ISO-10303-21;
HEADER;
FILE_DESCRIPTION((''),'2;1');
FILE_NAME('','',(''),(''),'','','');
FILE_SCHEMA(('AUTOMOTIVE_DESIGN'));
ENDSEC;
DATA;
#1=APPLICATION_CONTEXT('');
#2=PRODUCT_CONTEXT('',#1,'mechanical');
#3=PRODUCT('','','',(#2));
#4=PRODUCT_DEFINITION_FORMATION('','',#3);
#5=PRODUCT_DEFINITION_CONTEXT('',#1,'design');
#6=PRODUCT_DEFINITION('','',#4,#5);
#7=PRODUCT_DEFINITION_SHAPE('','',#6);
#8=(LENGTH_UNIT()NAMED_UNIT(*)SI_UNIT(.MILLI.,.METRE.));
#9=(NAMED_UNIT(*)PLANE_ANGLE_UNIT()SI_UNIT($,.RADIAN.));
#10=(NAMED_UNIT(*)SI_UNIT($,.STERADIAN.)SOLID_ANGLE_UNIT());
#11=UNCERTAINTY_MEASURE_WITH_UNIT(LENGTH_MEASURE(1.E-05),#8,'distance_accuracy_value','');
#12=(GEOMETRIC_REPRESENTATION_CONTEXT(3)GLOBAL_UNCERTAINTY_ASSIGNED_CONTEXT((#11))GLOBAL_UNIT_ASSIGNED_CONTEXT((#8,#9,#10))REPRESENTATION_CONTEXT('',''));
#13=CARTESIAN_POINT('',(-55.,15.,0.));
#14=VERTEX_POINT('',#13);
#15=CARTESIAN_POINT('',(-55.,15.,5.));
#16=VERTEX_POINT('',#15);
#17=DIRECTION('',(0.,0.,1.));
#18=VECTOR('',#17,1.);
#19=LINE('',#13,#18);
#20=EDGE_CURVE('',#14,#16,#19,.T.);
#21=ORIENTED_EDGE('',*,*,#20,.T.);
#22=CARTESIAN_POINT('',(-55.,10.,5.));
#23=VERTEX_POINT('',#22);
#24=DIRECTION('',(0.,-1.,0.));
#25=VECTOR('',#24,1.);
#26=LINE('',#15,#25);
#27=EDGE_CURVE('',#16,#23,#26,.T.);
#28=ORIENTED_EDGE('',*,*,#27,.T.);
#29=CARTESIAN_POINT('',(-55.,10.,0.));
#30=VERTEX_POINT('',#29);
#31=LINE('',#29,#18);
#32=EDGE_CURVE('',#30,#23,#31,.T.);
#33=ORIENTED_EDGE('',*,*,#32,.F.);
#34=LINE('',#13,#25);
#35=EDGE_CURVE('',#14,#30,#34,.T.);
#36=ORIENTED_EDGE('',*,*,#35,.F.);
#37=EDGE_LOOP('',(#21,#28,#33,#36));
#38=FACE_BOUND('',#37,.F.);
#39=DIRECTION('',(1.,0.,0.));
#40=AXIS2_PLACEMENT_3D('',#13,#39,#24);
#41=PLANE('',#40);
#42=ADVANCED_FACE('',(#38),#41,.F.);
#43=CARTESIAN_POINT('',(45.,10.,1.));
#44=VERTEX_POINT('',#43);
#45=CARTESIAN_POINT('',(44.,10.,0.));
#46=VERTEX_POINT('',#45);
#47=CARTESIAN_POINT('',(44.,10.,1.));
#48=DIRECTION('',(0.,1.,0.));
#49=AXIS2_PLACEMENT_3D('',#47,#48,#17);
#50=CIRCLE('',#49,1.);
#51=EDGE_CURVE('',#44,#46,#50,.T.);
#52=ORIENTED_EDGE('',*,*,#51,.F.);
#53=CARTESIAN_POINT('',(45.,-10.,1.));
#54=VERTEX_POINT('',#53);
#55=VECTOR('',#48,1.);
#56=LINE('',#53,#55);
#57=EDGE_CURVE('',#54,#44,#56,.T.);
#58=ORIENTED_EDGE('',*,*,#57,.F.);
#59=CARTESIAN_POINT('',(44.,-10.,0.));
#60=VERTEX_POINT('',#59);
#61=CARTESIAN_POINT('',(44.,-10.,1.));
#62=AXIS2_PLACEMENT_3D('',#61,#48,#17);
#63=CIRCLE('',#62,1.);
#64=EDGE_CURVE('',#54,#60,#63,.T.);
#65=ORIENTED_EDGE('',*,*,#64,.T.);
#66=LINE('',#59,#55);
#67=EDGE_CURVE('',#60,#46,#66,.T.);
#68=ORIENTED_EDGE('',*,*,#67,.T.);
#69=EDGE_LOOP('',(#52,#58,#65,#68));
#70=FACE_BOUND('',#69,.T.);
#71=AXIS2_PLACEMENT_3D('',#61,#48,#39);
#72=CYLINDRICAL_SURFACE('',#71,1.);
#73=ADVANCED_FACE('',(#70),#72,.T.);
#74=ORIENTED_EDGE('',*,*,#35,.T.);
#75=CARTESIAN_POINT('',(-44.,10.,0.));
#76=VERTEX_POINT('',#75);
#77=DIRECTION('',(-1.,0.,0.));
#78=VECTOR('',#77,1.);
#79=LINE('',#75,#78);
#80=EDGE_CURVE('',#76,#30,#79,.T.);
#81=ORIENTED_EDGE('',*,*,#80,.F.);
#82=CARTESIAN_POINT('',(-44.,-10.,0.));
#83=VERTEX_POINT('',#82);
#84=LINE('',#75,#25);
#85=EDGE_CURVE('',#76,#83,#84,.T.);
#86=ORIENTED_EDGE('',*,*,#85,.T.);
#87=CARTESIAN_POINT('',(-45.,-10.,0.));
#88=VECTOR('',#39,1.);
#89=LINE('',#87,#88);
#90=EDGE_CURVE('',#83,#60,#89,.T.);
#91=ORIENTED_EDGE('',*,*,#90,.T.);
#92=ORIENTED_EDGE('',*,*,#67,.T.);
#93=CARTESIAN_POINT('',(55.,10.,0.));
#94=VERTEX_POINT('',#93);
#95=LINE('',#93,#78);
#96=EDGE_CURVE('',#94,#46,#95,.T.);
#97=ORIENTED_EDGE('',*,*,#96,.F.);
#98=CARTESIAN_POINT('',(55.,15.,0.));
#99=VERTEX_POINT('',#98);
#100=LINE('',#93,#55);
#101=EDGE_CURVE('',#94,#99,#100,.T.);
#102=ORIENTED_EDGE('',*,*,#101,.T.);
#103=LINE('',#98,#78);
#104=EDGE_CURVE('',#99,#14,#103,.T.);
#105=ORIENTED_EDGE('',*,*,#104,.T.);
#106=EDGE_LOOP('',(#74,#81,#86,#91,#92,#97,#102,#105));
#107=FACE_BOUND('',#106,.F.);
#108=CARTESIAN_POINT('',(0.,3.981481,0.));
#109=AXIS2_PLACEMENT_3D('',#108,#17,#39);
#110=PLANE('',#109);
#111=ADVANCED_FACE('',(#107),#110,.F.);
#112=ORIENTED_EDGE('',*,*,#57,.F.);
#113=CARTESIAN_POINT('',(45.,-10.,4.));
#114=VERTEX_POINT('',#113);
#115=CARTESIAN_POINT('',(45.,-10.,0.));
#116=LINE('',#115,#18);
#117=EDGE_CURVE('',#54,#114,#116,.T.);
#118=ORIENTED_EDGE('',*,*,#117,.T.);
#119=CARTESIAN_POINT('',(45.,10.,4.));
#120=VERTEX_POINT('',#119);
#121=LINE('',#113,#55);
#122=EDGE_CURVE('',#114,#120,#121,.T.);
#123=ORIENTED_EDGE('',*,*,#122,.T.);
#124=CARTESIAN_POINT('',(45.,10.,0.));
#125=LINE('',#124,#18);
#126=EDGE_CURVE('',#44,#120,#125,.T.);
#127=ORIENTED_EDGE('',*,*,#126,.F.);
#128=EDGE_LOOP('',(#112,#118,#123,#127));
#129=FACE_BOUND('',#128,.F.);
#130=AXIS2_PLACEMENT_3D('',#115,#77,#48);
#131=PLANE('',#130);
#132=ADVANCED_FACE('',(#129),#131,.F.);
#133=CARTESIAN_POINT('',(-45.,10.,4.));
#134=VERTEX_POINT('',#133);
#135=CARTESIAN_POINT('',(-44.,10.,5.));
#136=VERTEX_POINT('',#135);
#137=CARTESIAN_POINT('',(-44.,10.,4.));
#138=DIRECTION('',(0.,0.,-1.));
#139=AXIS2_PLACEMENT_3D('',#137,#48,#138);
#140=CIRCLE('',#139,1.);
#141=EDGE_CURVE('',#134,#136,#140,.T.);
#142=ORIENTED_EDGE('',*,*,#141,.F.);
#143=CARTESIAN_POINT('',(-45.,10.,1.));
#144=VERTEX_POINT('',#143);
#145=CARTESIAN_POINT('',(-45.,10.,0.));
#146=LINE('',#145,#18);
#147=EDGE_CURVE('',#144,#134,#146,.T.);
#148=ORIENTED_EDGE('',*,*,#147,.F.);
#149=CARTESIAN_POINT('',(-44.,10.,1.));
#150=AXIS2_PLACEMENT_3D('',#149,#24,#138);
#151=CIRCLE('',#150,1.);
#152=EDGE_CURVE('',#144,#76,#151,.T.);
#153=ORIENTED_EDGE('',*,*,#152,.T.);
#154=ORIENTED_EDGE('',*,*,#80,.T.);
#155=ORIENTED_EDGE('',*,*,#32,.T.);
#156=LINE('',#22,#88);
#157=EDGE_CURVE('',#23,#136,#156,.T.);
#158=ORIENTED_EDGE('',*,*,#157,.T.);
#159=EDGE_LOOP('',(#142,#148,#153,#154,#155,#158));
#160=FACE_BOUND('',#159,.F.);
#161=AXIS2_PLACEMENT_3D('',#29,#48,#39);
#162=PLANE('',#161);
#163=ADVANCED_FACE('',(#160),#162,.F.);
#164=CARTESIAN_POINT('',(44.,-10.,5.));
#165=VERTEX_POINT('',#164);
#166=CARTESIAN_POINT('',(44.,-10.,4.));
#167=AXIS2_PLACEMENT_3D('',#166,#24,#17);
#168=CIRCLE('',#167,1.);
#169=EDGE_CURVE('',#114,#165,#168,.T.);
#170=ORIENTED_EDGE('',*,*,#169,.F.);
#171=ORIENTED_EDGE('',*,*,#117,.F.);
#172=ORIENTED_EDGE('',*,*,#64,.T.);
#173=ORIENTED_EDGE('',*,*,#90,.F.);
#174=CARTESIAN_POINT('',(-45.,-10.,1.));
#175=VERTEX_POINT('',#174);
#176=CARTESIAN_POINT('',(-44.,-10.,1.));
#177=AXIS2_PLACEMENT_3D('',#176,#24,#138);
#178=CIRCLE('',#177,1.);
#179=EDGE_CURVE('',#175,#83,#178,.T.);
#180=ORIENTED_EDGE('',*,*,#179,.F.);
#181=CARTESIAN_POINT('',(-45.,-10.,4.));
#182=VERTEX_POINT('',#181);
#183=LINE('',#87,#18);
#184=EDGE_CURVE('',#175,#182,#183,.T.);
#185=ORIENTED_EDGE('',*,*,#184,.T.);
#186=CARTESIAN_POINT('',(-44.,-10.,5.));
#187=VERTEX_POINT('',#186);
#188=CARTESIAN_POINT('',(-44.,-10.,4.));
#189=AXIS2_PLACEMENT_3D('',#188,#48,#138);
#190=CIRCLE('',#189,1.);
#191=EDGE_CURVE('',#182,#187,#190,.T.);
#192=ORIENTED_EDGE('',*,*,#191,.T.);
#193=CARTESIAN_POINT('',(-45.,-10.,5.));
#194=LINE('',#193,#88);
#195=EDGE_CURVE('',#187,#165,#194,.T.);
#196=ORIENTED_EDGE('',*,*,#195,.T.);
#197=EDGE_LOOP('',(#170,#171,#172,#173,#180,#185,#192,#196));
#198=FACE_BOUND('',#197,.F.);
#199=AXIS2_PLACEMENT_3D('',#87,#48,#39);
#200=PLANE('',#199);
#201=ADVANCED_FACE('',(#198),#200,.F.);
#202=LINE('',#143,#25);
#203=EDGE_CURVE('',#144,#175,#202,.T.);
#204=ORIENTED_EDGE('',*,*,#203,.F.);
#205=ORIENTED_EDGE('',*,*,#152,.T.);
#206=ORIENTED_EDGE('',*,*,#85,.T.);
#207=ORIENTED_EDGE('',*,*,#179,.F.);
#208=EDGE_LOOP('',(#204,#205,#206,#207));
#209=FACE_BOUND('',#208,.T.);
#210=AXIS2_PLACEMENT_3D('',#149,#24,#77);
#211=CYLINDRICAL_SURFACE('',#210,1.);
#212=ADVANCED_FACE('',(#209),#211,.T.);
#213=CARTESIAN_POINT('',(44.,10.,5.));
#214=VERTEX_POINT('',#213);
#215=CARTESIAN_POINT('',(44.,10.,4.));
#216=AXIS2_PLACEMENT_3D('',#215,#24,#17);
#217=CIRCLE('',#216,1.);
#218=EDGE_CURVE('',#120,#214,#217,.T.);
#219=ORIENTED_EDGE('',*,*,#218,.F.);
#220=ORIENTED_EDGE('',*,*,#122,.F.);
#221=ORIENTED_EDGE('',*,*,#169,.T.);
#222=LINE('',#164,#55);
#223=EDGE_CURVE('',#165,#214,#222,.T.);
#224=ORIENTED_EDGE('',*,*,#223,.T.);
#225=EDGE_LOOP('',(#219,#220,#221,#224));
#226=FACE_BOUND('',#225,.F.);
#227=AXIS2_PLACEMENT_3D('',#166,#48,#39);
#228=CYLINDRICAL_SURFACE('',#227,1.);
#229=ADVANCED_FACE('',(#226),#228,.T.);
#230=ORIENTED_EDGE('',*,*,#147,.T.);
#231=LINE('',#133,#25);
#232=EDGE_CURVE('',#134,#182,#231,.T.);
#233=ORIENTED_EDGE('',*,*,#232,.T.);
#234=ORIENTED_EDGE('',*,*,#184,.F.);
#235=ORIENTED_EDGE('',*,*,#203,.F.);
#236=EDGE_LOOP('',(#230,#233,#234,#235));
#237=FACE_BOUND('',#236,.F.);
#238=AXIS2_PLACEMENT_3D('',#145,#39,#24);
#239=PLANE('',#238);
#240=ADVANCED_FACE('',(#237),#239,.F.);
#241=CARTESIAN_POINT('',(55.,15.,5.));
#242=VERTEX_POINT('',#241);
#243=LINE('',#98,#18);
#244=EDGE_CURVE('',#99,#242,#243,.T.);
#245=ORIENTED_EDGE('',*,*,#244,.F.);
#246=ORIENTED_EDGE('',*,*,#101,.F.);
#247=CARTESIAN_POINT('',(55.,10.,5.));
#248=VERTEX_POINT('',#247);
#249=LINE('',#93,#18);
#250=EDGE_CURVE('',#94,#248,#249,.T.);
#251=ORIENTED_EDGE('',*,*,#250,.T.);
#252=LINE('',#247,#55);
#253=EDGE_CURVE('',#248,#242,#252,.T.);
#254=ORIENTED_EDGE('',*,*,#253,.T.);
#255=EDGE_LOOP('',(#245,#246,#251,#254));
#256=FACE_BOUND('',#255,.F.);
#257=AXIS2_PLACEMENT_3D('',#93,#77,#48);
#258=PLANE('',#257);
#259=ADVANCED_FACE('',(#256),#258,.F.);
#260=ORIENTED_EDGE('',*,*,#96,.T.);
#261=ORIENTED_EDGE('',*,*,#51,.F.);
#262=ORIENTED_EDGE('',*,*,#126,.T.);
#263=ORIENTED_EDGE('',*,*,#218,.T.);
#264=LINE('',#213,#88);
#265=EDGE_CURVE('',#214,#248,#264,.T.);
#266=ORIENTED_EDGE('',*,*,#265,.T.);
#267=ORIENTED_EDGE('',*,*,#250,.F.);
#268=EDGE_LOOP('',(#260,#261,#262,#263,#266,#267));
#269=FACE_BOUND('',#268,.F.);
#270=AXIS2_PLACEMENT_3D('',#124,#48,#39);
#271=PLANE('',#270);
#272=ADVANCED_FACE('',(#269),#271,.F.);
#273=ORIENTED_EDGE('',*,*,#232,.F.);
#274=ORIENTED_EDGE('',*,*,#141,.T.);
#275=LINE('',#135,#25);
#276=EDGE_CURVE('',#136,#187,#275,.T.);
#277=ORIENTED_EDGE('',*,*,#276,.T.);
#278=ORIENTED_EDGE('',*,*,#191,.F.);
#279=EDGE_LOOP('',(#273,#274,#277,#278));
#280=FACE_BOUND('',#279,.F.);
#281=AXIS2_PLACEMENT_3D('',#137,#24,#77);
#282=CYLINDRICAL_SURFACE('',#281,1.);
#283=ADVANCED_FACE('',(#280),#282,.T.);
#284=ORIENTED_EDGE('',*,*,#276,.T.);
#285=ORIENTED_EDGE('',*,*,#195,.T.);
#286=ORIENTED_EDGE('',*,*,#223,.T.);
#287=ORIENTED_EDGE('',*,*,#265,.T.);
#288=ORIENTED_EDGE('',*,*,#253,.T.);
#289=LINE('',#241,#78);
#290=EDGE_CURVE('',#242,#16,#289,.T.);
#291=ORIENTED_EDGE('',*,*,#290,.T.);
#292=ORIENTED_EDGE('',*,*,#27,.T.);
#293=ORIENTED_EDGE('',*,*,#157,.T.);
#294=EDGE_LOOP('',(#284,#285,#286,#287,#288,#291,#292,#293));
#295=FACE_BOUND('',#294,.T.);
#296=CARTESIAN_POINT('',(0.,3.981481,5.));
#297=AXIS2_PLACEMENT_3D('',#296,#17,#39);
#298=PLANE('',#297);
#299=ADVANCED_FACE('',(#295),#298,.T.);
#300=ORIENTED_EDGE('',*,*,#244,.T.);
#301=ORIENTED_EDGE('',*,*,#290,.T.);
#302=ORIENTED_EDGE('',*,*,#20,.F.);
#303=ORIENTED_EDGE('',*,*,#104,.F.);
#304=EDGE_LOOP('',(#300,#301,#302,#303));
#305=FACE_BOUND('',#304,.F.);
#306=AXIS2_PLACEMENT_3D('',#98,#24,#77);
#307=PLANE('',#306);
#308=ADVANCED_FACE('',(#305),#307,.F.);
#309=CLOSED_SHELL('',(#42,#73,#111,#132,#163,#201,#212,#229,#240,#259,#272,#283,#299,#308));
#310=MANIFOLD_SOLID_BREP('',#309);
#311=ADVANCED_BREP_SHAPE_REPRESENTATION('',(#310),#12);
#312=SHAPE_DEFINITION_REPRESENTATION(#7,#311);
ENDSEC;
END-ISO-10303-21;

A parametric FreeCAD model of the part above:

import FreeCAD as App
import Part
import Sketcher


def edges_at(feature, points):
    """Names of the edges that pass closest to the given points."""
    edges = feature.Shape.Edges
    near = lambda p: min(range(len(edges)), key=lambda i: edges[i].distToShape(Part.Vertex(*p))[0])
    return sorted({f"Edge{near(p) + 1}" for p in points})

doc = App.newDocument("Part")
body = doc.addObject("PartDesign::Body", "Body")

sketch1 = body.newObject("Sketcher::SketchObject", "Sketch")
sketch1.AttachmentSupport = (doc.getObject("XY_Plane"), [""])
sketch1.MapMode = "FlatFace"
sketch1.addGeometry([
    Part.LineSegment(App.Vector(-45, -10, 0), App.Vector(45, -10, 0)),
    Part.LineSegment(App.Vector(45, -10, 0), App.Vector(45, 10, 0)),
    Part.LineSegment(App.Vector(45, 10, 0), App.Vector(55, 10, 0)),
    Part.LineSegment(App.Vector(55, 10, 0), App.Vector(55, 15, 0)),
    Part.LineSegment(App.Vector(55, 15, 0), App.Vector(-55, 15, 0)),
    Part.LineSegment(App.Vector(-55, 15, 0), App.Vector(-55, 10, 0)),
    Part.LineSegment(App.Vector(-55, 10, 0), App.Vector(-45, 10, 0)),
    Part.LineSegment(App.Vector(-45, 10, 0), App.Vector(-45, -10, 0)),
], False)
sketch1.addConstraint([
    Sketcher.Constraint("Coincident", 0, 2, 1, 1),
    Sketcher.Constraint("Coincident", 1, 2, 2, 1),
    Sketcher.Constraint("Coincident", 2, 2, 3, 1),
    Sketcher.Constraint("Coincident", 3, 2, 4, 1),
    Sketcher.Constraint("Coincident", 4, 2, 5, 1),
    Sketcher.Constraint("Coincident", 5, 2, 6, 1),
    Sketcher.Constraint("Coincident", 6, 2, 7, 1),
    Sketcher.Constraint("Coincident", 7, 2, 0, 1),
    Sketcher.Constraint("Horizontal", 0),
    Sketcher.Constraint("Vertical", 1),
    Sketcher.Constraint("Horizontal", 2),
    Sketcher.Constraint("Vertical", 3),
    Sketcher.Constraint("Horizontal", 4),
    Sketcher.Constraint("Vertical", 5),
    Sketcher.Constraint("Horizontal", 6),
    Sketcher.Constraint("Vertical", 7),
    Sketcher.Constraint("Symmetric", 0, 2, 6, 2, -1, 1),
    Sketcher.Constraint("Symmetric", 2, 2, 5, 2, -2),
    Sketcher.Constraint("DistanceX", 0, 1, 0, 2, 90.0),
    Sketcher.Constraint("DistanceX", 2, 1, 2, 2, 10.0),
    Sketcher.Constraint("DistanceY", 1, 1, 1, 2, 20.0),
    Sketcher.Constraint("DistanceY", 3, 1, 3, 2, 5.0),
])
pad1 = body.newObject("PartDesign::Pad", "Pad")
pad1.Profile = sketch1
pad1.Length = 5
doc.recompute()

fillet = body.newObject("PartDesign::Fillet", "Fillet")
fillet.Base = (pad1, edges_at(pad1, [
    (-45, 0, 5),
    (-45, 0, 0),
    (45, 0, 5),
    (45, 0, 0),
]))
fillet.Radius = 1

doc.recompute()
